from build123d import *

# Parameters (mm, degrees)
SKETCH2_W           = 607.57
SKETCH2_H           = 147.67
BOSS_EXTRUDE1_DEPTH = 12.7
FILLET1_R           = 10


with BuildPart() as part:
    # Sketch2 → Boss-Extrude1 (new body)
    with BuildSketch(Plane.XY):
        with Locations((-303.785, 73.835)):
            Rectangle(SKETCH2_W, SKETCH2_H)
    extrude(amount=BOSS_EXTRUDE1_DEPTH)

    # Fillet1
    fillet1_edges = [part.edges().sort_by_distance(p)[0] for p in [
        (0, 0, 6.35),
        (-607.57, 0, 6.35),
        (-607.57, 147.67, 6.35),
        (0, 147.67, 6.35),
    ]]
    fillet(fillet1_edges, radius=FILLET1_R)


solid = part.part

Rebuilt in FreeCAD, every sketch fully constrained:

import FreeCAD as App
import Part
import Sketcher
from FreeCAD import Vector
Q = App.Units.Quantity


def edges_at(feature, points):
    """Names of the edges that pass closest to the given points."""
    edges = feature.Shape.Edges
    near = lambda p: min(range(len(edges)), key=lambda i: edges[i].distToShape(Part.Vertex(*p))[0])
    return sorted({f"Edge{near(p) + 1}" for p in points})


def add_polygon(sketch, points):
    """Adds a closed chain of lines whose ends are joined by coincident constraints."""
    first, n = sketch.GeometryCount, len(points)
    for a, b in zip(points, points[1:] + points[:1]):
        sketch.addGeometry(Part.LineSegment(App.Vector(*a, 0), App.Vector(*b, 0)), False)
    for i in range(n):
        sketch.addConstraint(Sketcher.Constraint("Coincident", first + i, 2, first + (i + 1) % n, 1))

doc = App.newDocument("Part")
body = doc.addObject("PartDesign::Body", "Body")

# Sketch on XY plane
sketch1 = doc.addObject("Sketcher::SketchObject", "Sketch")
body.addObject(sketch1)
sketch1.AttachmentSupport = (doc.XY_Plane, [""])
sketch1.MapMode = "FlatFace"
add_polygon(sketch1, [(-608, 148), (-608, 0), (0, 0), (0, 148)])  # lines 0-3
sketch1.addConstraint([
    Sketcher.Constraint("Vertical", 0),
    Sketcher.Constraint("Horizontal", 1),
    Sketcher.Constraint("Vertical", 2),
    Sketcher.Constraint("Horizontal", 3),
    Sketcher.Constraint("Coincident", 1, 2, -1, 1),
    Sketcher.Constraint("DistanceX", 1, 1, 1, 2, Q("607.57 mm")),
    Sketcher.Constraint("DistanceY", 0, 2, 0, 1, Q("147.67 mm")),
])
pad1 = doc.addObject("PartDesign::Pad", "Pad")
body.addObject(pad1)
pad1.Profile = sketch1
pad1.Length = 12.7
doc.recompute()

fillet = doc.addObject("PartDesign::Fillet", "Fillet")
body.addObject(fillet)
fillet.Base = (pad1, edges_at(pad1, [
    (0, 0, 6.35),
    (-607.57, 0, 6.35),
    (-607.57, 147.67, 6.35),
    (0, 147.67, 6.35),
]))
fillet.Radius = 10

doc.recompute()
